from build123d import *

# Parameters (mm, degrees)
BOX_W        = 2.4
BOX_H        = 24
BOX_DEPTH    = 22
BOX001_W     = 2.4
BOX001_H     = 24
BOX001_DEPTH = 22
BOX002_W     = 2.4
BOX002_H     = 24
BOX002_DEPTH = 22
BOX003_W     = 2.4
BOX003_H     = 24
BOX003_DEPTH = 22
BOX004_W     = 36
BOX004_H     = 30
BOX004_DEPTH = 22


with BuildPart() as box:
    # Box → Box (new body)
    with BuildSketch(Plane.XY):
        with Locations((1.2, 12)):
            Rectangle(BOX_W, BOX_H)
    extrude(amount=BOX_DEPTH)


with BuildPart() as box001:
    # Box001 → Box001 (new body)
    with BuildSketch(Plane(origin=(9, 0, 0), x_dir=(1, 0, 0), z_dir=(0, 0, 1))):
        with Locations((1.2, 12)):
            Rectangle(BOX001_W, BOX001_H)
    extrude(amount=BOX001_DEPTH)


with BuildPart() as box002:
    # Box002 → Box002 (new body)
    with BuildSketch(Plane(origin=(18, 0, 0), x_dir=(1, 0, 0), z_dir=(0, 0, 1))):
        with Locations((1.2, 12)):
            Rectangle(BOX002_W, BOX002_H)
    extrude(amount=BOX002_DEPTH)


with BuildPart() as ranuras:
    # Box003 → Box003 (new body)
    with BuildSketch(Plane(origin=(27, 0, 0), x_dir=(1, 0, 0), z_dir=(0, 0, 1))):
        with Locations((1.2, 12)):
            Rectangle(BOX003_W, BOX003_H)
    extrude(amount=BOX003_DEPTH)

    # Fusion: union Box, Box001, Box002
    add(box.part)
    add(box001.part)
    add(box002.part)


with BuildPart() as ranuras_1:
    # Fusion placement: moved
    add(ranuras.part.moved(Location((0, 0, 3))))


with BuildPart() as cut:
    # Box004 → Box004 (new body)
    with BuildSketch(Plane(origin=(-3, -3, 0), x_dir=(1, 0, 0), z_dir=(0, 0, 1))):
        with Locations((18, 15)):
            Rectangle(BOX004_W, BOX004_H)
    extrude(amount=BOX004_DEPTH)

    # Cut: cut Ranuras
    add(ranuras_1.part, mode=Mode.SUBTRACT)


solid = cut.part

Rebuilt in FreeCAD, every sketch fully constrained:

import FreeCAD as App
import Part
import Sketcher

V = App.Vector
Q = App.Units.Quantity


def add_polygon(sketch, points):
    """Adds a closed chain of lines whose ends are joined by coincident constraints."""
    first, n = sketch.GeometryCount, len(points)
    for a, b in zip(points, points[1:] + points[:1]):
        sketch.addGeometry(Part.LineSegment(App.Vector(*a, 0), App.Vector(*b, 0)), False)
    for i in range(n):
        sketch.addConstraint(Sketcher.Constraint("Coincident", first + i, 2, first + (i + 1) % n, 1))

doc = App.newDocument("Part")
body = doc.addObject("PartDesign::Body", "Body")

# Sketch on XY plane
sketch1 = body.newObject("Sketcher::SketchObject", "Sketch")
sketch1.AttachmentSupport = (doc.getObject("XY_Plane"), [""])
sketch1.MapMode = "FlatFace"
add_polygon(sketch1, [(0, 24), (0, 0), (2.4, 0), (2.4, 24)])  # lines 0-3
sketch1.addConstraint(Sketcher.Constraint("Vertical", 0))
sketch1.addConstraint(Sketcher.Constraint("Horizontal", 1))
sketch1.addConstraint(Sketcher.Constraint("Vertical", 2))
sketch1.addConstraint(Sketcher.Constraint("Horizontal", 3))
sketch1.addConstraint(Sketcher.Constraint("Coincident", 0, 2, -1, 1))
sketch1.addConstraint(Sketcher.Constraint("DistanceY", 0, 2, 0, 1, Q("24 mm")))
sketch1.addConstraint(Sketcher.Constraint("DistanceX", 1, 1, 1, 2, Q("2.4 mm")))
pad1 = body.newObject("PartDesign::Pad", "Pad")
pad1.Profile = sketch1
pad1.Length = 22
body2 = doc.addObject("PartDesign::Body", "Body001")

# Sketch on XY plane
sketch2 = body2.newObject("Sketcher::SketchObject", "Sketch001")
sketch2.AttachmentSupport = (doc.getObject("XY_Plane001"), [""])
sketch2.MapMode = "FlatFace"
add_polygon(sketch2, [(9, 24), (9, 0), (11.4, 0), (11.4, 24)])  # lines 0-3
sketch2.addConstraint(Sketcher.Constraint("Vertical", 0))
sketch2.addConstraint(Sketcher.Constraint("Horizontal", 1))
sketch2.addConstraint(Sketcher.Constraint("Vertical", 2))
sketch2.addConstraint(Sketcher.Constraint("Horizontal", 3))
sketch2.addConstraint(Sketcher.Constraint("PointOnObject", 0, 2, -1))
sketch2.addConstraint(Sketcher.Constraint("DistanceY", 0, 2, 0, 1, Q("24 mm")))
sketch2.addConstraint(Sketcher.Constraint("DistanceX", 1, 1, 1, 2, Q("2.4 mm")))
sketch2.addConstraint(Sketcher.Constraint("DistanceX", -1, 1, 0, 2, Q("9 mm")))
pad2 = body2.newObject("PartDesign::Pad", "Pad001")
pad2.Profile = sketch2
pad2.Length = 22
body3 = doc.addObject("PartDesign::Body", "Body002")

# Sketch on XY plane
sketch3 = body3.newObject("Sketcher::SketchObject", "Sketch002")
sketch3.AttachmentSupport = (doc.getObject("XY_Plane002"), [""])
sketch3.MapMode = "FlatFace"
add_polygon(sketch3, [(18, 24), (18, 0), (20.4, 0), (20.4, 24)])  # lines 0-3
sketch3.addConstraint(Sketcher.Constraint("Vertical", 0))
sketch3.addConstraint(Sketcher.Constraint("Horizontal", 1))
sketch3.addConstraint(Sketcher.Constraint("Vertical", 2))
sketch3.addConstraint(Sketcher.Constraint("Horizontal", 3))
sketch3.addConstraint(Sketcher.Constraint("PointOnObject", 0, 2, -1))
sketch3.addConstraint(Sketcher.Constraint("DistanceY", 0, 2, 0, 1, Q("24 mm")))
sketch3.addConstraint(Sketcher.Constraint("DistanceX", 1, 1, 1, 2, Q("2.4 mm")))
sketch3.addConstraint(Sketcher.Constraint("DistanceX", -1, 1, 0, 2, Q("18 mm")))
pad3 = body3.newObject("PartDesign::Pad", "Pad002")
pad3.Profile = sketch3
pad3.Length = 22
body4 = doc.addObject("PartDesign::Body", "Body003")
body4.AllowCompound = True

# Sketch on XY plane
sketch4 = body4.newObject("Sketcher::SketchObject", "Sketch003")
sketch4.AttachmentSupport = (doc.getObject("XY_Plane003"), [""])
sketch4.MapMode = "FlatFace"
add_polygon(sketch4, [(27, 24), (27, 0), (29.4, 0), (29.4, 24)])  # lines 0-3
sketch4.addConstraint(Sketcher.Constraint("Vertical", 0))
sketch4.addConstraint(Sketcher.Constraint("Horizontal", 1))
sketch4.addConstraint(Sketcher.Constraint("Vertical", 2))
sketch4.addConstraint(Sketcher.Constraint("Horizontal", 3))
sketch4.addConstraint(Sketcher.Constraint("PointOnObject", 0, 2, -1))
sketch4.addConstraint(Sketcher.Constraint("DistanceY", 0, 2, 0, 1, Q("24 mm")))
sketch4.addConstraint(Sketcher.Constraint("DistanceX", 1, 1, 1, 2, Q("2.4 mm")))
sketch4.addConstraint(Sketcher.Constraint("DistanceX", -1, 1, 0, 2, Q("27 mm")))
pad4 = body4.newObject("PartDesign::Pad", "Pad003")
pad4.Profile = sketch4
pad4.Length = 22
doc.recompute()

boolean = body4.newObject("PartDesign::Boolean", "Boolean")
boolean.Type = "Fuse"
boolean.addObjects([body])
doc.recompute()

boolean2 = body4.newObject("PartDesign::Boolean", "Boolean001")
boolean2.Type = "Fuse"
boolean2.addObjects([body2])
doc.recompute()

boolean3 = body4.newObject("PartDesign::Boolean", "Boolean002")
boolean3.Type = "Fuse"
boolean3.addObjects([body3])
body5 = doc.addObject("PartDesign::Body", "Body004")
body5.AllowCompound = True
doc.recompute()

body4.Placement = App.Placement(V(0, 0, 3), App.Rotation(V(0, 0, 1), 0))
boolean4 = body5.newObject("PartDesign::Boolean", "Boolean003")
boolean4.Type = "Fuse"
boolean4.addObjects([body4])
body6 = doc.addObject("PartDesign::Body", "Body005")

# Sketch on XY plane
sketch5 = body6.newObject("Sketcher::SketchObject", "Sketch004")
sketch5.AttachmentSupport = (doc.getObject("XY_Plane005"), [""])
sketch5.MapMode = "FlatFace"
add_polygon(sketch5, [(-3, 27), (-3, -3), (33, -3), (33, 27)])  # lines 0-3
sketch5.addConstraint(Sketcher.Constraint("Vertical", 0))
sketch5.addConstraint(Sketcher.Constraint("Horizontal", 1))
sketch5.addConstraint(Sketcher.Constraint("Vertical", 2))
sketch5.addConstraint(Sketcher.Constraint("Horizontal", 3))
sketch5.addConstraint(Sketcher.Constraint("DistanceX", 1, 1, 1, 2, Q("36 mm")))
sketch5.addConstraint(Sketcher.Constraint("DistanceY", 0, 2, 0, 1, Q("30 mm")))
sketch5.addConstraint(Sketcher.Constraint("DistanceX", 0, 2, -1, 1, Q("3 mm")))
sketch5.addConstraint(Sketcher.Constraint("DistanceY", 0, 2, -1, 1, Q("3 mm")))
pad5 = body6.newObject("PartDesign::Pad", "Pad004")
pad5.Profile = sketch5
pad5.Length = 22
doc.recompute()

boolean5 = body6.newObject("PartDesign::Boolean", "Boolean004")
boolean5.Type = "Cut"
boolean5.addObjects([body5])

doc.recompute()
